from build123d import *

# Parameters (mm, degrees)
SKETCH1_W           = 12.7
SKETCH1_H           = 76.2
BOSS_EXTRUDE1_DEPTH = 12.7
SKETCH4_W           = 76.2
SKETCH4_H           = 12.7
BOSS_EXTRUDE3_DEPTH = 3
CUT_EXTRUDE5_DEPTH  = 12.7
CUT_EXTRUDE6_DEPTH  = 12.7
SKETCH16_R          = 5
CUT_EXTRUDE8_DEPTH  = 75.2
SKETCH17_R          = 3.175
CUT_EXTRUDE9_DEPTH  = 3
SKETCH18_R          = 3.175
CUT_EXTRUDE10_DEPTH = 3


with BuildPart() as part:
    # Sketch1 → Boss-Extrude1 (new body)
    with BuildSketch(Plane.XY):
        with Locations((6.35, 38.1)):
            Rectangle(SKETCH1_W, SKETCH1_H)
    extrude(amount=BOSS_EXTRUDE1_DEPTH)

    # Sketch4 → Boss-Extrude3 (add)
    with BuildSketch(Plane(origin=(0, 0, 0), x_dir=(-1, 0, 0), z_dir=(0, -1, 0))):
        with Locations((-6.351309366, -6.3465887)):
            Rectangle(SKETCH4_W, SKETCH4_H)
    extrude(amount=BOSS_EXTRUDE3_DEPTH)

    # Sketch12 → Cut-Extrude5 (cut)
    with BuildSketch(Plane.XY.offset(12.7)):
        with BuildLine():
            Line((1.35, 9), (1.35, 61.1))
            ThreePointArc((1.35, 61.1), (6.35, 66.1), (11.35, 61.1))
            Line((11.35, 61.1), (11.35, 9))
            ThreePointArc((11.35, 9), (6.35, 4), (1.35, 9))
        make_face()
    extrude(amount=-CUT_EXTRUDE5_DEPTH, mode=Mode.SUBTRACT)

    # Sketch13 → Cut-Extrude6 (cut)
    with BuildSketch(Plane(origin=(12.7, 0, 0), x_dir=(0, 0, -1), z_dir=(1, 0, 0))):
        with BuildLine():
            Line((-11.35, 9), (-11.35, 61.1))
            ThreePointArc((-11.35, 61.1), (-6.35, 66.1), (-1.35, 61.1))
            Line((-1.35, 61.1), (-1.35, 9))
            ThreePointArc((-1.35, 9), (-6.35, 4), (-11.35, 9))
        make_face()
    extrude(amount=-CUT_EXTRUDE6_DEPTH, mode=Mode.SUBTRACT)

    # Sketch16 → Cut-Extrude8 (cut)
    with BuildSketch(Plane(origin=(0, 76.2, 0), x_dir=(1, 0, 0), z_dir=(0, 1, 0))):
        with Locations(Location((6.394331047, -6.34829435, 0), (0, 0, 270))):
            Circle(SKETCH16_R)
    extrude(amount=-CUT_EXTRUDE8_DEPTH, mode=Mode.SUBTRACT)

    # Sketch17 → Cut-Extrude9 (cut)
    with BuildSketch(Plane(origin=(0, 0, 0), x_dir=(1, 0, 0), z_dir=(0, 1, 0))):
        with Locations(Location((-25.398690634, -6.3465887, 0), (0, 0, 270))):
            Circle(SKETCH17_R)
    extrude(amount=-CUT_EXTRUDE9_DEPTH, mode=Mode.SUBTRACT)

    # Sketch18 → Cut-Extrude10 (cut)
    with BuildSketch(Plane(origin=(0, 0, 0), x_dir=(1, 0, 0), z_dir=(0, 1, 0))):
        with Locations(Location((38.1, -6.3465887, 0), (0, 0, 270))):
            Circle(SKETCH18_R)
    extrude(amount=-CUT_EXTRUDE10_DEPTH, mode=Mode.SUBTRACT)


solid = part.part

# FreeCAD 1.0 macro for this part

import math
import FreeCAD as App
import Part
import Sketcher
from FreeCAD import Vector

doc = App.newDocument("Part")
body = doc.addObject("PartDesign::Body", "Body")

sketch1 = body.newObject("Sketcher::SketchObject", "Sketch")
sketch1.AttachmentSupport = (doc.getObject("XY_Plane"), [""])
sketch1.MapMode = "FlatFace"
sketch1.addGeometry(Part.LineSegment(Vector(0, 76.2, 0), Vector(0, 0, 0)), False)
sketch1.addGeometry(Part.LineSegment(Vector(0, 0, 0), Vector(12.7, 0, 0)), False)
sketch1.addGeometry(Part.LineSegment(Vector(12.7, 0, 0), Vector(12.7, 76.2, 0)), False)
sketch1.addGeometry(Part.LineSegment(Vector(12.7, 76.2, 0), Vector(0, 76.2, 0)), False)
sketch1.addConstraint(Sketcher.Constraint("Coincident", 0, 2, 1, 1))
sketch1.addConstraint(Sketcher.Constraint("Coincident", 1, 2, 2, 1))
sketch1.addConstraint(Sketcher.Constraint("Coincident", 2, 2, 3, 1))
sketch1.addConstraint(Sketcher.Constraint("Coincident", 3, 2, 0, 1))
sketch1.addConstraint(Sketcher.Constraint("Vertical", 0))
sketch1.addConstraint(Sketcher.Constraint("Horizontal", 1))
sketch1.addConstraint(Sketcher.Constraint("Vertical", 2))
sketch1.addConstraint(Sketcher.Constraint("Horizontal", 3))
sketch1.addConstraint(Sketcher.Constraint("Coincident", 0, 2, -1, 1))
sketch1.addConstraint(Sketcher.Constraint("DistanceX", 1, 1, 1, 2, 12.7))
sketch1.addConstraint(Sketcher.Constraint("DistanceY", 0, 2, 0, 1, 76.2))
pad1 = body.newObject("PartDesign::Pad", "Pad")
pad1.Profile = sketch1
pad1.Length = 12.7

sketch2 = body.newObject("Sketcher::SketchObject", "Sketch001")
sketch2.AttachmentSupport = (doc.getObject("XZ_Plane"), [""])
sketch2.MapMode = "FlatFace"
sketch2.addGeometry(Part.LineSegment(Vector(44.451309, -0.003411, 0), Vector(44.451309, 12.696589, 0)), False)
sketch2.addGeometry(Part.LineSegment(Vector(44.451309, 12.696589, 0), Vector(-31.748691, 12.696589, 0)), False)
sketch2.addGeometry(Part.LineSegment(Vector(-31.748691, 12.696589, 0), Vector(-31.748691, -0.003411, 0)), False)
sketch2.addGeometry(Part.LineSegment(Vector(-31.748691, -0.003411, 0), Vector(44.451309, -0.003411, 0)), False)
sketch2.addConstraint(Sketcher.Constraint("Coincident", 0, 2, 1, 1))
sketch2.addConstraint(Sketcher.Constraint("Coincident", 1, 2, 2, 1))
sketch2.addConstraint(Sketcher.Constraint("Coincident", 2, 2, 3, 1))
sketch2.addConstraint(Sketcher.Constraint("Coincident", 3, 2, 0, 1))
sketch2.addConstraint(Sketcher.Constraint("Vertical", 0))
sketch2.addConstraint(Sketcher.Constraint("Horizontal", 1))
sketch2.addConstraint(Sketcher.Constraint("Vertical", 2))
sketch2.addConstraint(Sketcher.Constraint("Horizontal", 3))
sketch2.addConstraint(Sketcher.Constraint("DistanceX", 1, 2, 1, 1, 76.2))
sketch2.addConstraint(Sketcher.Constraint("DistanceY", 0, 1, 0, 2, 12.7))
sketch2.addConstraint(Sketcher.Constraint("DistanceX", -1, 1, 0, 2, 44.451309))
sketch2.addConstraint(Sketcher.Constraint("DistanceY", -1, 1, 0, 2, 12.696589))
pad2 = body.newObject("PartDesign::Pad", "Pad001")
pad2.Profile = sketch2
pad2.Length = 3

sketch3 = body.newObject("Sketcher::SketchObject", "Sketch002")
sketch3.AttachmentSupport = (doc.getObject("XY_Plane"), [""])
sketch3.MapMode = "FlatFace"
sketch3.AttachmentOffset = App.Placement(Vector(0, 0, 12.7), App.Rotation())
sketch3.addGeometry(Part.LineSegment(Vector(1.35, 61.1, 0), Vector(1.35, 9, 0)), False)
sketch3.addGeometry(Part.ArcOfCircle(Part.Circle(Vector(6.35, 9, 0), Vector(0, 0, 1), 5), math.radians(180), math.radians(360)), False)
sketch3.addGeometry(Part.LineSegment(Vector(11.35, 9, 0), Vector(11.35, 61.1, 0)), False)
sketch3.addGeometry(Part.ArcOfCircle(Part.Circle(Vector(6.35, 61.1, 0), Vector(0, 0, 1), 5), math.radians(0), math.radians(180)), False)
sketch3.addConstraint(Sketcher.Constraint("Tangent", 0, 2, 1, 1))
sketch3.addConstraint(Sketcher.Constraint("Tangent", 1, 2, 2, 1))
sketch3.addConstraint(Sketcher.Constraint("Tangent", 2, 2, 3, 1))
sketch3.addConstraint(Sketcher.Constraint("Tangent", 3, 2, 0, 1))
sketch3.addConstraint(Sketcher.Constraint("Vertical", 0))
sketch3.addConstraint(Sketcher.Constraint("Vertical", 2))
sketch3.addConstraint(Sketcher.Constraint("Radius", 1, 5.0))
sketch3.addConstraint(Sketcher.Constraint("DistanceY", 0, 2, 0, 1, 52.1))
sketch3.addConstraint(Sketcher.Constraint("DistanceY", -1, 1, 1, 3, 9.0))
sketch3.addConstraint(Sketcher.Constraint("DistanceX", -1, 1, 1, 3, 6.35))
pocket1 = body.newObject("PartDesign::Pocket", "Pocket")
pocket1.Profile = sketch3
pocket1.Length = 12.7

sketch4 = body.newObject("Sketcher::SketchObject", "Sketch003")
sketch4.AttachmentSupport = (doc.getObject("YZ_Plane"), [""])
sketch4.MapMode = "FlatFace"
sketch4.AttachmentOffset = App.Placement(Vector(0, 0, 12.7), App.Rotation())
sketch4.addGeometry(Part.LineSegment(Vector(61.1, 11.35, 0), Vector(9, 11.35, 0)), False)
sketch4.addGeometry(Part.ArcOfCircle(Part.Circle(Vector(9, 6.35, 0), Vector(0, 0, 1), 5), math.radians(90), math.radians(270)), False)
sketch4.addGeometry(Part.LineSegment(Vector(9, 1.35, 0), Vector(61.1, 1.35, 0)), False)
sketch4.addGeometry(Part.ArcOfCircle(Part.Circle(Vector(61.1, 6.35, 0), Vector(0, 0, 1), 5), math.radians(-90), math.radians(90)), False)
sketch4.addConstraint(Sketcher.Constraint("Tangent", 0, 2, 1, 1))
sketch4.addConstraint(Sketcher.Constraint("Tangent", 1, 2, 2, 1))
sketch4.addConstraint(Sketcher.Constraint("Tangent", 2, 2, 3, 1))
sketch4.addConstraint(Sketcher.Constraint("Tangent", 3, 2, 0, 1))
sketch4.addConstraint(Sketcher.Constraint("Horizontal", 0))
sketch4.addConstraint(Sketcher.Constraint("Horizontal", 2))
sketch4.addConstraint(Sketcher.Constraint("Radius", 1, 5.0))
sketch4.addConstraint(Sketcher.Constraint("DistanceX", 0, 2, 0, 1, 52.1))
sketch4.addConstraint(Sketcher.Constraint("DistanceX", -1, 1, 1, 3, 9.0))
sketch4.addConstraint(Sketcher.Constraint("DistanceY", -1, 1, 1, 3, 6.35))
pocket2 = body.newObject("PartDesign::Pocket", "Pocket001")
pocket2.Profile = sketch4
pocket2.Length = 12.7

sketch5 = body.newObject("Sketcher::SketchObject", "Sketch004")
sketch5.AttachmentSupport = (doc.getObject("XZ_Plane"), [""])
sketch5.MapMode = "FlatFace"
sketch5.AttachmentOffset = App.Placement(Vector(0, 0, -76.2), App.Rotation())
sketch5.addGeometry(Part.Circle(Vector(6.394331, 6.348294, 0), Vector(0, 0, 1), 5), False)
sketch5.addConstraint(Sketcher.Constraint("Diameter", 0, 10.0))
sketch5.addConstraint(Sketcher.Constraint("DistanceX", -1, 1, 0, 3, 6.394331))
sketch5.addConstraint(Sketcher.Constraint("DistanceY", -1, 1, 0, 3, 6.348294))
pocket3 = body.newObject("PartDesign::Pocket", "Pocket002")
pocket3.Profile = sketch5
pocket3.Length = 75.2
pocket3.Reversed = True

sketch6 = body.newObject("Sketcher::SketchObject", "Sketch005")
sketch6.AttachmentSupport = (doc.getObject("XZ_Plane"), [""])
sketch6.MapMode = "FlatFace"
sketch6.addGeometry(Part.Circle(Vector(-25.398691, 6.346589, 0), Vector(0, 0, 1), 3.175), False)
sketch6.addConstraint(Sketcher.Constraint("Diameter", 0, 6.35))
sketch6.addConstraint(Sketcher.Constraint("DistanceX", 0, 3, -1, 1, 25.398691))
sketch6.addConstraint(Sketcher.Constraint("DistanceY", -1, 1, 0, 3, 6.346589))
pocket4 = body.newObject("PartDesign::Pocket", "Pocket003")
pocket4.Profile = sketch6
pocket4.Length = 3
pocket4.Reversed = True

sketch7 = body.newObject("Sketcher::SketchObject", "Sketch006")
sketch7.AttachmentSupport = (doc.getObject("XZ_Plane"), [""])
sketch7.MapMode = "FlatFace"
sketch7.addGeometry(Part.Circle(Vector(38.1, 6.346589, 0), Vector(0, 0, 1), 3.175), False)
sketch7.addConstraint(Sketcher.Constraint("Diameter", 0, 6.35))
sketch7.addConstraint(Sketcher.Constraint("DistanceX", -1, 1, 0, 3, 38.1))
sketch7.addConstraint(Sketcher.Constraint("DistanceY", -1, 1, 0, 3, 6.346589))
pocket5 = body.newObject("PartDesign::Pocket", "Pocket004")
pocket5.Profile = sketch7
pocket5.Length = 3
pocket5.Reversed = True

doc.recompute()
